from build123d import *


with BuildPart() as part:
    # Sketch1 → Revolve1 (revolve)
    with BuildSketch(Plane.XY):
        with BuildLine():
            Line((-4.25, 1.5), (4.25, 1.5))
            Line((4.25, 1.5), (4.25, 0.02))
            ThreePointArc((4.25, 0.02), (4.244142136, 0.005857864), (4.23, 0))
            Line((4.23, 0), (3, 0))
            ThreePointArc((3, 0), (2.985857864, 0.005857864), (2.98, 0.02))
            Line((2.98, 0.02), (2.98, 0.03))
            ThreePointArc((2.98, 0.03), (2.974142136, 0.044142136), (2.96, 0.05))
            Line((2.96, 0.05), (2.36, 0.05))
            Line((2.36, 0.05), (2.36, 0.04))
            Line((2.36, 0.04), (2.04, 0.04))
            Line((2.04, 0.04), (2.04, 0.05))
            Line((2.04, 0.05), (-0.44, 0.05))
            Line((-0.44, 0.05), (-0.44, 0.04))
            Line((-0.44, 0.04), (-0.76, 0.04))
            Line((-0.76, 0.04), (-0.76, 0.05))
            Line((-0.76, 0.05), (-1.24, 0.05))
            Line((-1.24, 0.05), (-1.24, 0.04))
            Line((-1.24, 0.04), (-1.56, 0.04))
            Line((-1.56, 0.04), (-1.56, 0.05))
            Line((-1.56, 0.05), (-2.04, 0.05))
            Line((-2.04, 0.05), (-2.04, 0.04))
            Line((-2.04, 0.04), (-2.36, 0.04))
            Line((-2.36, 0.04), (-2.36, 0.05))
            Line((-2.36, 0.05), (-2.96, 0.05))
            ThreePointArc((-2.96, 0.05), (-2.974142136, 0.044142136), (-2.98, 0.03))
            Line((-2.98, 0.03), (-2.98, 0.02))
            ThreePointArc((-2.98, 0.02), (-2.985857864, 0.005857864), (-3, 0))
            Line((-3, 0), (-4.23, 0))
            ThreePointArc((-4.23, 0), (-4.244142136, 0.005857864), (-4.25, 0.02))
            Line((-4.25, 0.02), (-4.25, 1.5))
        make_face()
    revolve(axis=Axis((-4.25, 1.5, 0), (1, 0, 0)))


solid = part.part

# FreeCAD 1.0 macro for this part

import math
import FreeCAD as App
import Part
import Sketcher

doc = App.newDocument("Part")
body = doc.addObject("PartDesign::Body", "Body")

# Sketch on XY plane
sketch1 = doc.addObject("Sketcher::SketchObject", "Sketch")
body.addObject(sketch1)
sketch1.AttachmentSupport = (doc.XY_Plane, [""])
sketch1.MapMode = "FlatFace"
sketch1.addGeometry(Part.LineSegment(App.Vector(4.25, 1.5, 0), App.Vector(-4.25, 1.5, 0)), False)
sketch1.addGeometry(Part.LineSegment(App.Vector(-4.25, 1.5, 0), App.Vector(-4.25, 0.02, 0)), False)
sketch1.addGeometry(Part.ArcOfCircle(Part.Circle(App.Vector(-4.23, 0.02, 0), App.Vector(0, 0, 1), 0.02), math.radians(179.999997), math.radians(270.000003)), False)
sketch1.addGeometry(Part.LineSegment(App.Vector(-4.23, 0, 0), App.Vector(-3, 0, 0)), False)
sketch1.addGeometry(Part.ArcOfCircle(Part.Circle(App.Vector(-3, 0.02, 0), App.Vector(0, 0, 1), 0.02), math.radians(-90.000003), math.radians(0.000003)), False)
sketch1.addGeometry(Part.LineSegment(App.Vector(-2.98, 0.02, 0), App.Vector(-2.98, 0.03, 0)), False)
sketch1.addGeometry(Part.ArcOfCircle(Part.Circle(App.Vector(-2.96, 0.03, 0), App.Vector(0, 0, 1), 0.02), math.radians(89.999997), math.radians(180.000003)), False)
sketch1.addGeometry(Part.LineSegment(App.Vector(-2.96, 0.05, 0), App.Vector(-2.36, 0.05, 0)), False)
sketch1.addGeometry(Part.LineSegment(App.Vector(-2.36, 0.05, 0), App.Vector(-2.36, 0.04, 0)), False)
sketch1.addGeometry(Part.LineSegment(App.Vector(-2.36, 0.04, 0), App.Vector(-2.04, 0.04, 0)), False)
sketch1.addGeometry(Part.LineSegment(App.Vector(-2.04, 0.04, 0), App.Vector(-2.04, 0.05, 0)), False)
sketch1.addGeometry(Part.LineSegment(App.Vector(-2.04, 0.05, 0), App.Vector(-1.56, 0.05, 0)), False)
sketch1.addGeometry(Part.LineSegment(App.Vector(-1.56, 0.05, 0), App.Vector(-1.56, 0.04, 0)), False)
sketch1.addGeometry(Part.LineSegment(App.Vector(-1.56, 0.04, 0), App.Vector(-1.24, 0.04, 0)), False)
sketch1.addGeometry(Part.LineSegment(App.Vector(-1.24, 0.04, 0), App.Vector(-1.24, 0.05, 0)), False)
sketch1.addGeometry(Part.LineSegment(App.Vector(-1.24, 0.05, 0), App.Vector(-0.76, 0.05, 0)), False)
sketch1.addGeometry(Part.LineSegment(App.Vector(-0.76, 0.05, 0), App.Vector(-0.76, 0.04, 0)), False)
sketch1.addGeometry(Part.LineSegment(App.Vector(-0.76, 0.04, 0), App.Vector(-0.44, 0.04, 0)), False)
sketch1.addGeometry(Part.LineSegment(App.Vector(-0.44, 0.04, 0), App.Vector(-0.44, 0.05, 0)), False)
sketch1.addGeometry(Part.LineSegment(App.Vector(-0.44, 0.05, 0), App.Vector(2.04, 0.05, 0)), False)
sketch1.addGeometry(Part.LineSegment(App.Vector(2.04, 0.05, 0), App.Vector(2.04, 0.04, 0)), False)
sketch1.addGeometry(Part.LineSegment(App.Vector(2.04, 0.04, 0), App.Vector(2.36, 0.04, 0)), False)
sketch1.addGeometry(Part.LineSegment(App.Vector(2.36, 0.04, 0), App.Vector(2.36, 0.05, 0)), False)
sketch1.addGeometry(Part.LineSegment(App.Vector(2.36, 0.05, 0), App.Vector(2.96, 0.05, 0)), False)
sketch1.addGeometry(Part.ArcOfCircle(Part.Circle(App.Vector(2.96, 0.03, 0), App.Vector(0, 0, 1), 0.02), math.radians(-0.000003), math.radians(90.000003)), False)
sketch1.addGeometry(Part.LineSegment(App.Vector(2.98, 0.03, 0), App.Vector(2.98, 0.02, 0)), False)
sketch1.addGeometry(Part.ArcOfCircle(Part.Circle(App.Vector(3, 0.02, 0), App.Vector(0, 0, 1), 0.02), math.radians(179.999997), math.radians(270.000003)), False)
sketch1.addGeometry(Part.LineSegment(App.Vector(3, 0, 0), App.Vector(4.23, 0, 0)), False)
sketch1.addGeometry(Part.ArcOfCircle(Part.Circle(App.Vector(4.23, 0.02, 0), App.Vector(0, 0, 1), 0.02), math.radians(-90.000003), math.radians(0.000003)), False)
sketch1.addGeometry(Part.LineSegment(App.Vector(4.25, 0.02, 0), App.Vector(4.25, 1.5, 0)), False)
sketch1.addGeometry(Part.LineSegment(App.Vector(-4.25, 1.5, 0), App.Vector(4.25, 1.5, 0)), True)  # axis
sketch1.addConstraint(Sketcher.Constraint("Coincident", 0, 2, 1, 1))
sketch1.addConstraint(Sketcher.Constraint("Tangent", 1, 2, 2, 1))
sketch1.addConstraint(Sketcher.Constraint("Tangent", 2, 2, 3, 1))
sketch1.addConstraint(Sketcher.Constraint("Tangent", 3, 2, 4, 1))
sketch1.addConstraint(Sketcher.Constraint("Tangent", 4, 2, 5, 1))
sketch1.addConstraint(Sketcher.Constraint("Tangent", 5, 2, 6, 2))
sketch1.addConstraint(Sketcher.Constraint("Tangent", 6, 1, 7, 1))
sketch1.addConstraint(Sketcher.Constraint("Coincident", 7, 2, 8, 1))
sketch1.addConstraint(Sketcher.Constraint("Coincident", 8, 2, 9, 1))
sketch1.addConstraint(Sketcher.Constraint("Coincident", 9, 2, 10, 1))
sketch1.addConstraint(Sketcher.Constraint("Coincident", 10, 2, 11, 1))
sketch1.addConstraint(Sketcher.Constraint("Coincident", 11, 2, 12, 1))
sketch1.addConstraint(Sketcher.Constraint("Coincident", 12, 2, 13, 1))
sketch1.addConstraint(Sketcher.Constraint("Coincident", 13, 2, 14, 1))
sketch1.addConstraint(Sketcher.Constraint("Coincident", 14, 2, 15, 1))
sketch1.addConstraint(Sketcher.Constraint("Coincident", 15, 2, 16, 1))
sketch1.addConstraint(Sketcher.Constraint("Coincident", 16, 2, 17, 1))
sketch1.addConstraint(Sketcher.Constraint("Coincident", 17, 2, 18, 1))
sketch1.addConstraint(Sketcher.Constraint("Coincident", 18, 2, 19, 1))
sketch1.addConstraint(Sketcher.Constraint("Coincident", 19, 2, 20, 1))
sketch1.addConstraint(Sketcher.Constraint("Coincident", 20, 2, 21, 1))
sketch1.addConstraint(Sketcher.Constraint("Coincident", 21, 2, 22, 1))
sketch1.addConstraint(Sketcher.Constraint("Coincident", 22, 2, 23, 1))
sketch1.addConstraint(Sketcher.Constraint("Tangent", 23, 2, 24, 2))
sketch1.addConstraint(Sketcher.Constraint("Tangent", 24, 1, 25, 1))
sketch1.addConstraint(Sketcher.Constraint("Tangent", 25, 2, 26, 1))
sketch1.addConstraint(Sketcher.Constraint("Tangent", 26, 2, 27, 1))
sketch1.addConstraint(Sketcher.Constraint("Tangent", 27, 2, 28, 1))
sketch1.addConstraint(Sketcher.Constraint("Tangent", 28, 2, 29, 1))
sketch1.addConstraint(Sketcher.Constraint("Coincident", 29, 2, 0, 1))
sketch1.addConstraint(Sketcher.Constraint("Horizontal", 0))
sketch1.addConstraint(Sketcher.Constraint("Vertical", 1))
sketch1.addConstraint(Sketcher.Constraint("Horizontal", 3))
sketch1.addConstraint(Sketcher.Constraint("Vertical", 5))
sketch1.addConstraint(Sketcher.Constraint("Horizontal", 7))
sketch1.addConstraint(Sketcher.Constraint("Vertical", 8))
sketch1.addConstraint(Sketcher.Constraint("Horizontal", 9))
sketch1.addConstraint(Sketcher.Constraint("Vertical", 10))
sketch1.addConstraint(Sketcher.Constraint("Horizontal", 11))
sketch1.addConstraint(Sketcher.Constraint("Vertical", 12))
sketch1.addConstraint(Sketcher.Constraint("Horizontal", 13))
sketch1.addConstraint(Sketcher.Constraint("Vertical", 14))
sketch1.addConstraint(Sketcher.Constraint("Horizontal", 15))
sketch1.addConstraint(Sketcher.Constraint("Vertical", 16))
sketch1.addConstraint(Sketcher.Constraint("Horizontal", 17))
sketch1.addConstraint(Sketcher.Constraint("Vertical", 18))
sketch1.addConstraint(Sketcher.Constraint("Horizontal", 19))
sketch1.addConstraint(Sketcher.Constraint("Vertical", 20))
sketch1.addConstraint(Sketcher.Constraint("Horizontal", 21))
sketch1.addConstraint(Sketcher.Constraint("Vertical", 22))
sketch1.addConstraint(Sketcher.Constraint("Horizontal", 23))
sketch1.addConstraint(Sketcher.Constraint("Vertical", 25))
sketch1.addConstraint(Sketcher.Constraint("Horizontal", 27))
sketch1.addConstraint(Sketcher.Constraint("Vertical", 29))
sketch1.addConstraint(Sketcher.Constraint("Horizontal", 30))
sketch1.addConstraint(Sketcher.Constraint("Coincident", 30, 1, 0, 2))
sketch1.addConstraint(Sketcher.Constraint("Equal", 2, 4))
sketch1.addConstraint(Sketcher.Constraint("Equal", 4, 6))
sketch1.addConstraint(Sketcher.Constraint("Equal", 6, 24))
sketch1.addConstraint(Sketcher.Constraint("Equal", 24, 26))
sketch1.addConstraint(Sketcher.Constraint("Equal", 26, 28))
sketch1.addConstraint(Sketcher.Constraint("Symmetric", 3, 2, 26, 2, -1, 1))
sketch1.addConstraint(Sketcher.Constraint("Symmetric", 2, 3, 28, 3, -2))
sketch1.addConstraint(Sketcher.Constraint("Symmetric", 10, 2, 19, 2, -2))
sketch1.addConstraint(Sketcher.Constraint("Symmetric", 8, 2, 21, 2, -2))
sketch1.addConstraint(Sketcher.Constraint("Horizontal", 6, 3, 24, 3))
sketch1.addConstraint(Sketcher.Constraint("Horizontal", 7, 2, 10, 2))
sketch1.addConstraint(Sketcher.Constraint("Horizontal", 9, 2, 12, 2))
sketch1.addConstraint(Sketcher.Constraint("Horizontal", 11, 2, 14, 2))
sketch1.addConstraint(Sketcher.Constraint("Horizontal", 13, 2, 16, 2))
sketch1.addConstraint(Sketcher.Constraint("Vertical", 28, 2, 30, 2))
sketch1.addConstraint(Sketcher.Constraint("Equal", 9, 13))
sketch1.addConstraint(Sketcher.Constraint("Equal", 11, 15))
sketch1.addConstraint(Sketcher.Constraint("Equal", 13, 17))
sketch1.addConstraint(Sketcher.Constraint("Equal", 5, 8))
sketch1.addConstraint(Sketcher.Constraint("Radius", 2, 0.02))
sketch1.addConstraint(Sketcher.Constraint("DistanceX", 0, 2, 0, 1, 8.5))
sketch1.addConstraint(Sketcher.Constraint("DistanceX", 7, 1, 7, 2, 0.6))
sketch1.addConstraint(Sketcher.Constraint("DistanceX", 4, 3, -1, 1, 3.0))
sketch1.addConstraint(Sketcher.Constraint("DistanceX", 9, 1, 9, 2, 0.32))
sketch1.addConstraint(Sketcher.Constraint("DistanceX", 11, 1, 11, 2, 0.48))
sketch1.addConstraint(Sketcher.Constraint("DistanceY", 1, 2, 1, 1, 1.48))
sketch1.addConstraint(Sketcher.Constraint("DistanceY", 5, 1, 5, 2, 0.01))
revolution = doc.addObject("PartDesign::Revolution", "Revolution")
body.addObject(revolution)
revolution.Profile = sketch1
revolution.ReferenceAxis = (sketch1, ["Axis0"])
revolution.Angle = 360

doc.recompute()
